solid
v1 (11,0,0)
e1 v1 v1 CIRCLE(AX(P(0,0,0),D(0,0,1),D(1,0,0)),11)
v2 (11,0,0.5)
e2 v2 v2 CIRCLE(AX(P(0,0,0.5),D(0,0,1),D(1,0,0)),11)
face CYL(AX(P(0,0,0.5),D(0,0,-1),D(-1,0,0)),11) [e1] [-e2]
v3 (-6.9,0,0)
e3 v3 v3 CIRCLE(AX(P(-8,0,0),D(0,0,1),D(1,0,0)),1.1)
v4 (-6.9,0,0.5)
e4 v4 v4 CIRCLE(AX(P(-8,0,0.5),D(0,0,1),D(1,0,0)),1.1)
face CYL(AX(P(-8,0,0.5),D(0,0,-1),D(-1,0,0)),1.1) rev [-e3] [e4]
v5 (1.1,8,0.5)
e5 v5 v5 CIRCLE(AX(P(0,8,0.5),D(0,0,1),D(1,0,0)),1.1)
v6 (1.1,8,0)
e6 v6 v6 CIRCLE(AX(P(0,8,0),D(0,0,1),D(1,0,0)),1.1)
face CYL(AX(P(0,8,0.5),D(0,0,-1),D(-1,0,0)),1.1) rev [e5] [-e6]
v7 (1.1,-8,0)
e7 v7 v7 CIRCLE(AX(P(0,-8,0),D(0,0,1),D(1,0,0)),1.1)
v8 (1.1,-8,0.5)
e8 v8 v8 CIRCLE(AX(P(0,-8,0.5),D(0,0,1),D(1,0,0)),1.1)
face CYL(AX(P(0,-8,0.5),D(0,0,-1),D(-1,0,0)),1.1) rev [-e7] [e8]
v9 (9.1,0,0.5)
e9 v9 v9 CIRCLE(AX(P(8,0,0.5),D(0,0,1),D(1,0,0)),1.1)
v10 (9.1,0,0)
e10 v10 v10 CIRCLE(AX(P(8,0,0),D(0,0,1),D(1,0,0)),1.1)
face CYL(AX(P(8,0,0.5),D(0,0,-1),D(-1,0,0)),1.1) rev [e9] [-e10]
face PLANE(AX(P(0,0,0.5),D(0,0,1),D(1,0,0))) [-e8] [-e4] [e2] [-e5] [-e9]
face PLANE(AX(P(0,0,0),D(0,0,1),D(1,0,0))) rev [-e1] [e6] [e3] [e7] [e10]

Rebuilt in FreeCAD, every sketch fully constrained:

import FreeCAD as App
import Part
import Sketcher
Q = App.Units.Quantity

doc = App.newDocument("Part")
body = doc.addObject("PartDesign::Body", "Body")

# Sketch on XY plane
sketch1 = body.newObject("Sketcher::SketchObject", "Sketch")
sketch1.AttachmentSupport = (doc.getObject("XY_Plane"), [""])
sketch1.MapMode = "FlatFace"
sketch1.addGeometry([
    Part.Circle(App.Vector(0, 0, 0), App.Vector(0, 0, 1), 11),  # 0
    Part.Circle(App.Vector(-8, 0, 0), App.Vector(0, 0, 1), 1.1),  # 1
    Part.Circle(App.Vector(0, -8, 0), App.Vector(0, 0, 1), 1.1),  # 2
    Part.Circle(App.Vector(8, 0, 0), App.Vector(0, 0, 1), 1.1),  # 3
    Part.Circle(App.Vector(0, 8, 0), App.Vector(0, 0, 1), 1.1),  # 4
], False)
sketch1.addConstraint([
    Sketcher.Constraint("Coincident", 0, 3, -1, 1),
    Sketcher.Constraint("Equal", 1, 2),
    Sketcher.Constraint("Equal", 2, 3),
    Sketcher.Constraint("Equal", 3, 4),
    Sketcher.Constraint("Symmetric", 1, 3, 3, 3, -1, 1),
    Sketcher.Constraint("Symmetric", 2, 3, 4, 3, -1, 1),
    Sketcher.Constraint("PointOnObject", 1, 3, -1),
    Sketcher.Constraint("PointOnObject", 2, 3, -2),
    Sketcher.Constraint("Diameter", 0, Q("22 mm")),
    Sketcher.Constraint("Diameter", 1, Q("2.2 mm")),
    Sketcher.Constraint("DistanceX", 1, 3, -1, 1, Q("8 mm")),
    Sketcher.Constraint("DistanceY", 2, 3, -1, 1, Q("8 mm")),
])
pad1 = body.newObject("PartDesign::Pad", "Pad")
pad1.Profile = sketch1
pad1.Length = 0.5

doc.recompute()
